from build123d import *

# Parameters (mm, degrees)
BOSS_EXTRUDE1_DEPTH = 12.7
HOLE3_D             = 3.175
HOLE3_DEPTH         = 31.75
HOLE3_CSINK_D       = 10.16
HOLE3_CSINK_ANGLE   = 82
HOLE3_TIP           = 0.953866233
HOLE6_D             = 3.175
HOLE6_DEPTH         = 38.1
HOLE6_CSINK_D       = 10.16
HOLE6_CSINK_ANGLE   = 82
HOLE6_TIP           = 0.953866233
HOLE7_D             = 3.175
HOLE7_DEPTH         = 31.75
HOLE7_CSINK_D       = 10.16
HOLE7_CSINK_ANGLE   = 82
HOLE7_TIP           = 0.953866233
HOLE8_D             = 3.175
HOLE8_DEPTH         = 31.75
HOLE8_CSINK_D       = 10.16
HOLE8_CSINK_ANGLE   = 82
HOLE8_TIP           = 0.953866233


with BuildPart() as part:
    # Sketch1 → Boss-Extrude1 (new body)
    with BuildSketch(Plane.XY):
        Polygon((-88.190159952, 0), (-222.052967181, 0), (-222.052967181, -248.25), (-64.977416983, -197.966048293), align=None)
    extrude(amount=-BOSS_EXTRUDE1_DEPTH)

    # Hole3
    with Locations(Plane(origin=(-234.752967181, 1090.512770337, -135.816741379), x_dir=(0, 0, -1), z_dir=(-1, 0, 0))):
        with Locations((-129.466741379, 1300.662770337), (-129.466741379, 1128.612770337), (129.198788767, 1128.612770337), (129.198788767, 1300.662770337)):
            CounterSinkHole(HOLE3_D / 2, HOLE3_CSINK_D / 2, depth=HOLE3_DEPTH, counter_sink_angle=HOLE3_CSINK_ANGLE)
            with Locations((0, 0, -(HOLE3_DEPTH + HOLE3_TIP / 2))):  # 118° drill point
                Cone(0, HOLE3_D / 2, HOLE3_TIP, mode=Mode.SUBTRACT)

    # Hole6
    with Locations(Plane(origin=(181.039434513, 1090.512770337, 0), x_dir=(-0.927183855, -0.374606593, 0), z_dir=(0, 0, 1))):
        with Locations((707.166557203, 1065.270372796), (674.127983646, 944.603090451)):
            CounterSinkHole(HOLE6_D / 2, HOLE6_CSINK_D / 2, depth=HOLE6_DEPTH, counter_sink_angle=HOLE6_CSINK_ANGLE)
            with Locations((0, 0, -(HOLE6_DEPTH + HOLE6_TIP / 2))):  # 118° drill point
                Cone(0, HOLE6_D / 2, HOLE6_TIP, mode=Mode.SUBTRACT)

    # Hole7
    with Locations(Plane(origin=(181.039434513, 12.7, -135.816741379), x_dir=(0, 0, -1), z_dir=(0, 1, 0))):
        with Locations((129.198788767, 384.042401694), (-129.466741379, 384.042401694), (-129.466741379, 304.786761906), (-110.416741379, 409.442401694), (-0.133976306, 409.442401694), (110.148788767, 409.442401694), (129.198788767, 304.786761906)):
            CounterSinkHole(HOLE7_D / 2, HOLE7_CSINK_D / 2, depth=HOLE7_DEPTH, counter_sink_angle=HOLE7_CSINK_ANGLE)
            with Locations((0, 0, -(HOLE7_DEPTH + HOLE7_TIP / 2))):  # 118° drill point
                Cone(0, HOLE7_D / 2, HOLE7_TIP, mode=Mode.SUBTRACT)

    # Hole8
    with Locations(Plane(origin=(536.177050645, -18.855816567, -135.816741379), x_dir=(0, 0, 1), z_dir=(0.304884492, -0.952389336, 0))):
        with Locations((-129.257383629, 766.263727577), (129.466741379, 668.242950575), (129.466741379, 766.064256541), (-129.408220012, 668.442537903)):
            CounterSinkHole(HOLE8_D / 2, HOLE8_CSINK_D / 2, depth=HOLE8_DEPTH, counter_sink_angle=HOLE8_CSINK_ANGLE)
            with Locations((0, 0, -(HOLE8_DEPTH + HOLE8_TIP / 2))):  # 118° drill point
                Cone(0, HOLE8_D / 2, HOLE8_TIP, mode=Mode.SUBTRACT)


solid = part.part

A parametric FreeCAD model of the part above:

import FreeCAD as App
import Part
import Sketcher
Q = App.Units.Quantity

doc = App.newDocument("Part")
body = doc.addObject("PartDesign::Body", "Body")

sketch1 = body.newObject("Sketcher::SketchObject", "Sketch")
sketch1.AttachmentSupport = (doc.getObject("XY_Plane"), [""])
sketch1.MapMode = "FlatFace"
sketch1.addGeometry([
    Part.LineSegment(App.Vector(-88.19016, 0, 0), App.Vector(-222.052967, 0, 0)),
    Part.LineSegment(App.Vector(-222.052967, 0, 0), App.Vector(-222.052967, -248.25, 0)),
    Part.LineSegment(App.Vector(-222.052967, -248.25, 0), App.Vector(-64.977417, -197.966048, 0)),
    Part.LineSegment(App.Vector(-64.977417, -197.966048, 0), App.Vector(-88.19016, 0, 0)),
], False)
sketch1.addConstraint([
    Sketcher.Constraint("Coincident", 0, 2, 1, 1),
    Sketcher.Constraint("Coincident", 1, 2, 2, 1),
    Sketcher.Constraint("Coincident", 2, 2, 3, 1),
    Sketcher.Constraint("Coincident", 3, 2, 0, 1),
    Sketcher.Constraint("Horizontal", 0),
    Sketcher.Constraint("Vertical", 1),
    Sketcher.Constraint("PointOnObject", 0, 2, -1),
    Sketcher.Constraint("DistanceY", 1, 2, 1, 1, 248.25),
    Sketcher.Constraint("Distance", 3, 199.322321),
    Sketcher.Constraint("DistanceX", 0, 2, 0, 1, 133.862807),
    Sketcher.Constraint("DistanceY", 2, 2, -1, 1, 197.966048),
    Sketcher.Constraint("DistanceX", 3, 2, -1, 1, 88.19016),
])
pad1 = body.newObject("PartDesign::Pad", "Pad")
pad1.Profile = sketch1
pad1.Length = Q("0.5 in")
pad1.Reversed = True

sketch2 = body.newObject("Sketcher::SketchObject", "Sketch001")
sketch2.AttachmentSupport = (doc.getObject("YZ_Plane"), [""])
sketch2.MapMode = "FlatFace"
sketch2.AttachmentOffset = App.Placement(App.Vector(0, 0, -234.752967), App.Rotation())
sketch2.addGeometry([
    Part.Circle(App.Vector(-210.15, -6.35, 0), App.Vector(0, 0, 1), 1.5875),
    Part.Circle(App.Vector(-38.1, -6.35, 0), App.Vector(0, 0, 1), 1.5875),
    Part.Circle(App.Vector(-38.1, -265.01553, 0), App.Vector(0, 0, 1), 1.5875),
    Part.Circle(App.Vector(-210.15, -265.01553, 0), App.Vector(0, 0, 1), 1.5875),
], False)
sketch2.addConstraint([
    Sketcher.Constraint("Equal", 0, 1),
    Sketcher.Constraint("Equal", 1, 2),
    Sketcher.Constraint("Equal", 2, 3),
    Sketcher.Constraint("Horizontal", 0, 3, 1, 3),
    Sketcher.Constraint("Horizontal", 2, 3, 3, 3),
    Sketcher.Constraint("Vertical", 1, 3, 2, 3),
    Sketcher.Constraint("Vertical", 0, 3, 3, 3),
    Sketcher.Constraint("Diameter", 0, Q("0.125 in")),
    Sketcher.Constraint("DistanceX", 1, 3, -1, 1, Q("1.5 in")),
    Sketcher.Constraint("DistanceY", 0, 3, -1, 1, Q("0.25 in")),
    Sketcher.Constraint("DistanceX", 0, 3, -1, 1, 210.15),
    Sketcher.Constraint("DistanceY", 2, 3, -1, 1, 265.01553),
])
doc.recompute()
hole = body.newObject("PartDesign::Hole", "Hole")
hole.Profile = sketch2
hole.ThreadType = "None"
hole.Diameter = Q("0.125 in")
hole.DepthType = "Dimension"
hole.Depth = Q("1.25 in")
hole.DrillPoint = "Angled"
hole.DrillPointAngle = 118
hole.HoleCutType = "Countersink"
hole.HoleCutDiameter = Q("0.4 in")
hole.HoleCutCountersinkAngle = 82
hole.Reversed = True

sketch3 = body.newObject("Sketcher::SketchObject", "Sketch002")
sketch3.AttachmentSupport = (doc.getObject("XY_Plane"), [""])
sketch3.MapMode = "FlatFace"
sketch3.addGeometry([
    Part.Circle(App.Vector(-75.576675, -162.097975, 0), App.Vector(0, 0, 1), 1.5875),
    Part.Circle(App.Vector(-90.146603, -37.840751, 0), App.Vector(0, 0, 1), 1.5875),
], False)
sketch3.addConstraint([
    Sketcher.Constraint("Equal", 0, 1),
    Sketcher.Constraint("Diameter", 0, Q("0.125 in")),
    Sketcher.Constraint("DistanceY", 1, 3, -1, 1, 37.840751),
    Sketcher.Constraint("DistanceX", 0, 3, -1, 1, 75.576675),
    Sketcher.Constraint("DistanceY", 0, 3, -1, 1, 162.097975),
    Sketcher.Constraint("DistanceX", 1, 3, -1, 1, 90.146603),
])
doc.recompute()
hole2 = body.newObject("PartDesign::Hole", "Hole001")
hole2.Profile = sketch3
hole2.ThreadType = "None"
hole2.Diameter = Q("0.125 in")
hole2.DepthType = "Dimension"
hole2.Depth = Q("1.5 in")
hole2.DrillPoint = "Angled"
hole2.DrillPointAngle = 118
hole2.HoleCutType = "Countersink"
hole2.HoleCutDiameter = Q("0.4 in")
hole2.HoleCutCountersinkAngle = 82

sketch4 = body.newObject("Sketcher::SketchObject", "Sketch003")
sketch4.AttachmentSupport = (doc.getObject("XZ_Plane"), [""])
sketch4.MapMode = "FlatFace"
sketch4.AttachmentOffset = App.Placement(App.Vector(0, 0, -0.5 * 25.4), App.Rotation())
sketch4.addGeometry([
    Part.Circle(App.Vector(-203.002967, -265.01553, 0), App.Vector(0, 0, 1), 1.5875),
    Part.Circle(App.Vector(-203.002967, -6.35, 0), App.Vector(0, 0, 1), 1.5875),
    Part.Circle(App.Vector(-123.747327, -6.35, 0), App.Vector(0, 0, 1), 1.5875),
    Part.Circle(App.Vector(-228.402967, -25.4, 0), App.Vector(0, 0, 1), 1.5875),
    Part.Circle(App.Vector(-228.402967, -135.682765, 0), App.Vector(0, 0, 1), 1.5875),
    Part.Circle(App.Vector(-228.402967, -245.96553, 0), App.Vector(0, 0, 1), 1.5875),
    Part.Circle(App.Vector(-123.747327, -265.01553, 0), App.Vector(0, 0, 1), 1.5875),
], False)
sketch4.addConstraint([
    Sketcher.Constraint("Equal", 0, 1),
    Sketcher.Constraint("Equal", 1, 2),
    Sketcher.Constraint("Equal", 2, 3),
    Sketcher.Constraint("Equal", 3, 4),
    Sketcher.Constraint("Equal", 4, 5),
    Sketcher.Constraint("Equal", 5, 6),
    Sketcher.Constraint("Horizontal", 1, 3, 2, 3),
    Sketcher.Constraint("Horizontal", 0, 3, 6, 3),
    Sketcher.Constraint("Vertical", 0, 3, 1, 3),
    Sketcher.Constraint("Vertical", 3, 3, 4, 3),
    Sketcher.Constraint("Vertical", 4, 3, 5, 3),
    Sketcher.Constraint("Vertical", 2, 3, 6, 3),
    Sketcher.Constraint("Diameter", 0, Q("0.125 in")),
    Sketcher.Constraint("DistanceY", 3, 3, -1, 1, Q("1 in")),
    Sketcher.Constraint("DistanceX", 3, 3, 1, 3, Q("1 in")),
    Sketcher.Constraint("DistanceY", 1, 3, -1, 1, Q("0.25 in")),
    Sketcher.Constraint("DistanceY", 0, 3, 5, 3, Q("0.75 in")),
    Sketcher.Constraint("DistanceY", 0, 3, -1, 1, 265.01553),
    Sketcher.Constraint("DistanceX", 1, 3, 2, 3, 79.25564),
    Sketcher.Constraint("DistanceX", 0, 3, -1, 1, 203.002967),
    Sketcher.Constraint("DistanceY", 4, 3, -1, 1, 135.682765),
])
doc.recompute()
hole3 = body.newObject("PartDesign::Hole", "Hole002")
hole3.Profile = sketch4
hole3.ThreadType = "None"
hole3.Diameter = Q("0.125 in")
hole3.DepthType = "Dimension"
hole3.Depth = Q("1.25 in")
hole3.DrillPoint = "Angled"
hole3.DrillPointAngle = 118
hole3.HoleCutType = "Countersink"
hole3.HoleCutDiameter = Q("0.4 in")
hole3.HoleCutCountersinkAngle = 82
hole3.Reversed = True

sketch5 = body.newObject("Sketcher::SketchObject", "Sketch004")
sketch5.Placement = App.Placement(App.Vector(55.315238, -172.792136, 0), App.Rotation(App.Vector(0, 0, 1), App.Vector(-0.952389336, -0.304884492, 0), App.Vector(0.304884492, -0.952389336, 0), "ZXY"))
sketch5.addGeometry([
    Part.Circle(App.Vector(-265.074125, 261.363269, 0), App.Vector(0, 0, 1), 1.5875),
    Part.Circle(App.Vector(-6.35, 163.342492, 0), App.Vector(0, 0, 1), 1.5875),
    Part.Circle(App.Vector(-6.35, 261.163798, 0), App.Vector(0, 0, 1), 1.5875),
    Part.Circle(App.Vector(-265.224961, 163.542079, 0), App.Vector(0, 0, 1), 1.5875),
], False)
sketch5.addConstraint([
    Sketcher.Constraint("Equal", 0, 1),
    Sketcher.Constraint("Equal", 1, 2),
    Sketcher.Constraint("Equal", 2, 3),
    Sketcher.Constraint("Vertical", 1, 3, 2, 3),
    Sketcher.Constraint("Diameter", 0, Q("0.125 in")),
    Sketcher.Constraint("DistanceX", 1, 3, -1, 1, Q("0.25 in")),
    Sketcher.Constraint("DistanceY", -1, 1, 0, 3, 261.363269),
    Sketcher.Constraint("DistanceY", -1, 1, 1, 3, 163.342492),
    Sketcher.Constraint("DistanceX", 3, 3, -1, 1, 265.224961),
    Sketcher.Constraint("DistanceY", -1, 1, 3, 3, 163.542079),
    Sketcher.Constraint("DistanceY", 2, 3, 0, 3, 0.199471),
    Sketcher.Constraint("DistanceX", 0, 3, -1, 1, 265.074125),
])
doc.recompute()
hole4 = body.newObject("PartDesign::Hole", "Hole003")
hole4.Profile = sketch5
hole4.ThreadType = "None"
hole4.Diameter = Q("0.125 in")
hole4.DepthType = "Dimension"
hole4.Depth = Q("1.25 in")
hole4.DrillPoint = "Angled"
hole4.DrillPointAngle = 118
hole4.HoleCutType = "Countersink"
hole4.HoleCutDiameter = Q("0.4 in")
hole4.HoleCutCountersinkAngle = 82

doc.recompute()
